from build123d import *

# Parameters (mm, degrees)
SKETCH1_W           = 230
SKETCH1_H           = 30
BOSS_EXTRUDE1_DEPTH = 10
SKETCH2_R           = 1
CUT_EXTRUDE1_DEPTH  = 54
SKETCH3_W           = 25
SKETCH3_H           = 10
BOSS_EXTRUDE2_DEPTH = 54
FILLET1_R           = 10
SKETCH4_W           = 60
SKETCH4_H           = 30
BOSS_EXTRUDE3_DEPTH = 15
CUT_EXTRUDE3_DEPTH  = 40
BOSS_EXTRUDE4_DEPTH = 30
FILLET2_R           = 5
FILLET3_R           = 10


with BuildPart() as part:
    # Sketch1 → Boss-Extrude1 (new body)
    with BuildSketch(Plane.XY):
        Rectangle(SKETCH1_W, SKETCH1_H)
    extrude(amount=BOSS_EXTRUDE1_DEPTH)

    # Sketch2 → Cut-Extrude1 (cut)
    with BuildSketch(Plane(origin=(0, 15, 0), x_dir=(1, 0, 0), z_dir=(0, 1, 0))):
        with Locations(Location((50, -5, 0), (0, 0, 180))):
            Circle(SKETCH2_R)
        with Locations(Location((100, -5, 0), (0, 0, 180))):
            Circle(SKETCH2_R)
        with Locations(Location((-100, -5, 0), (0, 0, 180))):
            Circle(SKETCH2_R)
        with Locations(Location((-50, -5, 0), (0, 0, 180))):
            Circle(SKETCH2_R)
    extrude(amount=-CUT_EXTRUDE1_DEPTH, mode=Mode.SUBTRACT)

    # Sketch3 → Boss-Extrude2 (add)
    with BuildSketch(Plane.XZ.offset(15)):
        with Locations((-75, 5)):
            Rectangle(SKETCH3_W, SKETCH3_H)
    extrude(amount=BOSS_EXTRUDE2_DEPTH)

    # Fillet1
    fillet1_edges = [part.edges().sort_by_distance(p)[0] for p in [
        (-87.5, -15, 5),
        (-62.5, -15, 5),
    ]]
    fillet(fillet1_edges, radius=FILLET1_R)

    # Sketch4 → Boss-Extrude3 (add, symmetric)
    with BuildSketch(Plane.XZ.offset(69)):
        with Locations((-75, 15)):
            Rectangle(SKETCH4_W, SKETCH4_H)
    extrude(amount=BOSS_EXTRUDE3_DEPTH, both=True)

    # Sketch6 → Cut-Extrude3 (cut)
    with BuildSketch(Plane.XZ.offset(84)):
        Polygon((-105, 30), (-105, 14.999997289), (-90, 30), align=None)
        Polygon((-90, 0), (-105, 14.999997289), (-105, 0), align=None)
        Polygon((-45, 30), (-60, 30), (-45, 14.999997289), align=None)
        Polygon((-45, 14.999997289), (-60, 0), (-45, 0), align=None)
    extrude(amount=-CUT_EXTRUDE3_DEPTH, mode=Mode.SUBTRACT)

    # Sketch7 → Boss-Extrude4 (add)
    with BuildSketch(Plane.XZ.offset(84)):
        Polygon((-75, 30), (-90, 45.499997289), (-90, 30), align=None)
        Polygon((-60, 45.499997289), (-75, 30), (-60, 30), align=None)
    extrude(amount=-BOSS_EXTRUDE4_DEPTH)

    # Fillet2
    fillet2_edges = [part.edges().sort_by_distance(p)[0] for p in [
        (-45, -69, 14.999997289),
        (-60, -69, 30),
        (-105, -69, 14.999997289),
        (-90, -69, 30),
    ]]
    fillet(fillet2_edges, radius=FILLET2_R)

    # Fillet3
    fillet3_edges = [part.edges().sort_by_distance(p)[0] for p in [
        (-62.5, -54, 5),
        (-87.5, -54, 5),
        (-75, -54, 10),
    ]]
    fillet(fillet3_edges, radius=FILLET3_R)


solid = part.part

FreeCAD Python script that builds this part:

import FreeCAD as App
import Part
import Sketcher

V = App.Vector
Q = App.Units.Quantity


def edges_at(feature, points):
    """Names of the edges that pass closest to the given points."""
    edges = feature.Shape.Edges
    near = lambda p: min(range(len(edges)), key=lambda i: edges[i].distToShape(Part.Vertex(*p))[0])
    return sorted({f"Edge{near(p) + 1}" for p in points})


def add_polygon(sketch, points):
    """Adds a closed chain of lines whose ends are joined by coincident constraints."""
    first, n = sketch.GeometryCount, len(points)
    for a, b in zip(points, points[1:] + points[:1]):
        sketch.addGeometry(Part.LineSegment(App.Vector(*a, 0), App.Vector(*b, 0)), False)
    for i in range(n):
        sketch.addConstraint(Sketcher.Constraint("Coincident", first + i, 2, first + (i + 1) % n, 1))

doc = App.newDocument("Part")
body = doc.addObject("PartDesign::Body", "Body")

sketch1 = body.newObject("Sketcher::SketchObject", "Sketch")
sketch1.AttachmentSupport = (doc.getObject("XY_Plane"), [""])
sketch1.MapMode = "FlatFace"
add_polygon(sketch1, [(-115, 15), (-115, -15), (115, -15), (115, 15)])
sketch1.addConstraint(Sketcher.Constraint("Vertical", 0))
sketch1.addConstraint(Sketcher.Constraint("Horizontal", 1))
sketch1.addConstraint(Sketcher.Constraint("Vertical", 2))
sketch1.addConstraint(Sketcher.Constraint("Horizontal", 3))
sketch1.addConstraint(Sketcher.Constraint("Symmetric", 0, 2, 2, 2, -1, 1))
sketch1.addConstraint(Sketcher.Constraint("DistanceX", 1, 1, 1, 2, Q("230 mm")))
sketch1.addConstraint(Sketcher.Constraint("DistanceY", 0, 2, 0, 1, Q("30 mm")))
pad1 = body.newObject("PartDesign::Pad", "Pad")
pad1.Profile = sketch1
pad1.Length = 10

sketch2 = body.newObject("Sketcher::SketchObject", "Sketch001")
sketch2.AttachmentSupport = (doc.getObject("XZ_Plane"), [""])
sketch2.MapMode = "FlatFace"
sketch2.AttachmentOffset = App.Placement(V(0, 0, -15), App.Rotation())
sketch2.addGeometry(Part.Circle(V(50, 5, 0), V(0, 0, 1), 1), False)
sketch2.addGeometry(Part.Circle(V(100, 5, 0), V(0, 0, 1), 1), False)
sketch2.addGeometry(Part.Circle(V(-100, 5, 0), V(0, 0, 1), 1), False)
sketch2.addGeometry(Part.Circle(V(-50, 5, 0), V(0, 0, 1), 1), False)
sketch2.addConstraint(Sketcher.Constraint("Equal", 0, 1))
sketch2.addConstraint(Sketcher.Constraint("Equal", 1, 2))
sketch2.addConstraint(Sketcher.Constraint("Equal", 2, 3))
sketch2.addConstraint(Sketcher.Constraint("Symmetric", 1, 3, 2, 3, -2))
sketch2.addConstraint(Sketcher.Constraint("Symmetric", 0, 3, 3, 3, -2))
sketch2.addConstraint(Sketcher.Constraint("Horizontal", 0, 3, 1, 3))
sketch2.addConstraint(Sketcher.Constraint("Diameter", 0, Q("2 mm")))
sketch2.addConstraint(Sketcher.Constraint("DistanceX", -1, 1, 0, 3, Q("50 mm")))
sketch2.addConstraint(Sketcher.Constraint("DistanceY", -1, 1, 0, 3, Q("5 mm")))
sketch2.addConstraint(Sketcher.Constraint("DistanceX", -1, 1, 1, 3, Q("100 mm")))
pocket1 = body.newObject("PartDesign::Pocket", "Pocket")
pocket1.Profile = sketch2
pocket1.Length = 54
pocket1.Reversed = True

sketch3 = body.newObject("Sketcher::SketchObject", "Sketch002")
sketch3.AttachmentSupport = (doc.getObject("XZ_Plane"), [""])
sketch3.MapMode = "FlatFace"
sketch3.AttachmentOffset = App.Placement(V(0, 0, 15), App.Rotation())
add_polygon(sketch3, [(-88, 10), (-88, 0), (-62, 0), (-62, 10)])
sketch3.addConstraint(Sketcher.Constraint("Vertical", 0))
sketch3.addConstraint(Sketcher.Constraint("Horizontal", 1))
sketch3.addConstraint(Sketcher.Constraint("Vertical", 2))
sketch3.addConstraint(Sketcher.Constraint("Horizontal", 3))
sketch3.addConstraint(Sketcher.Constraint("PointOnObject", 0, 2, -1))
sketch3.addConstraint(Sketcher.Constraint("DistanceX", 1, 1, 1, 2, Q("25 mm")))
sketch3.addConstraint(Sketcher.Constraint("DistanceY", 0, 2, 0, 1, Q("10 mm")))
sketch3.addConstraint(Sketcher.Constraint("DistanceX", 0, 2, -1, 1, Q("87.5 mm")))
pad2 = body.newObject("PartDesign::Pad", "Pad001")
pad2.Profile = sketch3
pad2.Length = 54
doc.recompute()

fillet = body.newObject("PartDesign::Fillet", "Fillet")
fillet.Base = (pad2, edges_at(pad2, [(-87.5, -15, 5), (-62.5, -15, 5)]))
fillet.Radius = 10

sketch4 = body.newObject("Sketcher::SketchObject", "Sketch003")
sketch4.AttachmentSupport = (doc.getObject("XZ_Plane"), [""])
sketch4.MapMode = "FlatFace"
sketch4.AttachmentOffset = App.Placement(V(0, 0, 69), App.Rotation())
add_polygon(sketch4, [(-105, 30), (-105, 0), (-45, 0), (-45, 30)])
sketch4.addConstraint(Sketcher.Constraint("Vertical", 0))
sketch4.addConstraint(Sketcher.Constraint("Horizontal", 1))
sketch4.addConstraint(Sketcher.Constraint("Vertical", 2))
sketch4.addConstraint(Sketcher.Constraint("Horizontal", 3))
sketch4.addConstraint(Sketcher.Constraint("PointOnObject", 0, 2, -1))
sketch4.addConstraint(Sketcher.Constraint("DistanceX", 1, 1, 1, 2, Q("60 mm")))
sketch4.addConstraint(Sketcher.Constraint("DistanceY", 0, 2, 0, 1, Q("30 mm")))
sketch4.addConstraint(Sketcher.Constraint("DistanceX", 0, 2, -1, 1, Q("105 mm")))
pad3 = body.newObject("PartDesign::Pad", "Pad002")
pad3.Profile = sketch4
pad3.Length = 30
pad3.Midplane = True

sketch5 = body.newObject("Sketcher::SketchObject", "Sketch004")
sketch5.AttachmentSupport = (doc.getObject("XZ_Plane"), [""])
sketch5.MapMode = "FlatFace"
sketch5.AttachmentOffset = App.Placement(V(0, 0, 84), App.Rotation())
add_polygon(sketch5, [(-105, 30), (-105, 15), (-90, 30)])
add_polygon(sketch5, [(-90, 0), (-105, 15), (-105, 0)])
add_polygon(sketch5, [(-45, 30), (-60, 30), (-45, 15)])
add_polygon(sketch5, [(-45, 15), (-60, 0), (-45, 0)])
sketch5.addConstraint(Sketcher.Constraint("Vertical", 0))
sketch5.addConstraint(Sketcher.Constraint("Horizontal", 2))
sketch5.addConstraint(Sketcher.Constraint("Vertical", 4))
sketch5.addConstraint(Sketcher.Constraint("Horizontal", 5))
sketch5.addConstraint(Sketcher.Constraint("Horizontal", 6))
sketch5.addConstraint(Sketcher.Constraint("Vertical", 8))
sketch5.addConstraint(Sketcher.Constraint("Horizontal", 10))
sketch5.addConstraint(Sketcher.Constraint("Vertical", 11))
sketch5.addConstraint(Sketcher.Constraint("Coincident", 3, 2, 0, 2))
sketch5.addConstraint(Sketcher.Constraint("Coincident", 11, 2, 7, 2))
sketch5.addConstraint(Sketcher.Constraint("PointOnObject", 4, 2, -1))
sketch5.addConstraint(Sketcher.Constraint("PointOnObject", 9, 2, -1))
sketch5.addConstraint(Sketcher.Constraint("Perpendicular", 1, 3))
sketch5.addConstraint(Sketcher.Constraint("Parallel", 3, 7))
sketch5.addConstraint(Sketcher.Constraint("Perpendicular", 7, 9))
sketch5.addConstraint(Sketcher.Constraint("Horizontal", 2, 2, 6, 2))
sketch5.addConstraint(Sketcher.Constraint("Horizontal", 3, 2, 7, 2))
sketch5.addConstraint(Sketcher.Constraint("Vertical", 1, 2, 5, 2))
sketch5.addConstraint(Sketcher.Constraint("Vertical", 6, 2, 9, 2))
sketch5.addConstraint(Sketcher.Constraint("DistanceX", 2, 2, 2, 1, Q("15 mm")))
sketch5.addConstraint(Sketcher.Constraint("DistanceX", 0, 2, -1, 1, Q("105 mm")))
sketch5.addConstraint(Sketcher.Constraint("DistanceX", 6, 2, -1, 1, Q("60 mm")))
pocket2 = body.newObject("PartDesign::Pocket", "Pocket001")
pocket2.Profile = sketch5
pocket2.Length = 40

sketch6 = body.newObject("Sketcher::SketchObject", "Sketch005")
sketch6.AttachmentSupport = (doc.getObject("XZ_Plane"), [""])
sketch6.MapMode = "FlatFace"
sketch6.AttachmentOffset = App.Placement(V(0, 0, 84), App.Rotation())
add_polygon(sketch6, [(-75, 30), (-90, 45), (-90, 30)])
add_polygon(sketch6, [(-60, 45), (-75, 30), (-60, 30)])
sketch6.addConstraint(Sketcher.Constraint("Vertical", 1))
sketch6.addConstraint(Sketcher.Constraint("Horizontal", 2))
sketch6.addConstraint(Sketcher.Constraint("Horizontal", 4))
sketch6.addConstraint(Sketcher.Constraint("Vertical", 5))
sketch6.addConstraint(Sketcher.Constraint("Coincident", 3, 2, 2, 2))
sketch6.addConstraint(Sketcher.Constraint("Horizontal", 0, 2, 5, 2))
sketch6.addConstraint(Sketcher.Constraint("Equal", 2, 4))
sketch6.addConstraint(Sketcher.Constraint("DistanceX", 2, 1, 2, 2, Q("15 mm")))
sketch6.addConstraint(Sketcher.Constraint("DistanceX", 0, 2, -1, 1, Q("90 mm")))
sketch6.addConstraint(Sketcher.Constraint("DistanceY", -1, 1, 1, 2, Q("30 mm")))
sketch6.addConstraint(Sketcher.Constraint("DistanceY", 1, 2, 1, 1, Q("15.499997 mm")))
pad4 = body.newObject("PartDesign::Pad", "Pad003")
pad4.Profile = sketch6
pad4.Length = 30
pad4.Reversed = True
doc.recompute()

fillet2 = body.newObject("PartDesign::Fillet", "Fillet001")
fillet2.Base = (pad4, edges_at(pad4, [
    (-45, -69, 15),
    (-60, -69, 30),
    (-105, -69, 15),
    (-90, -69, 30),
]))
fillet2.Radius = 5
doc.recompute()

fillet3 = body.newObject("PartDesign::Fillet", "Fillet002")
fillet3.Base = (fillet2, edges_at(fillet2, [(-62.5, -54, 5), (-87.5, -54, 5), (-75, -54, 10)]))
fillet3.Radius = 10

doc.recompute()
